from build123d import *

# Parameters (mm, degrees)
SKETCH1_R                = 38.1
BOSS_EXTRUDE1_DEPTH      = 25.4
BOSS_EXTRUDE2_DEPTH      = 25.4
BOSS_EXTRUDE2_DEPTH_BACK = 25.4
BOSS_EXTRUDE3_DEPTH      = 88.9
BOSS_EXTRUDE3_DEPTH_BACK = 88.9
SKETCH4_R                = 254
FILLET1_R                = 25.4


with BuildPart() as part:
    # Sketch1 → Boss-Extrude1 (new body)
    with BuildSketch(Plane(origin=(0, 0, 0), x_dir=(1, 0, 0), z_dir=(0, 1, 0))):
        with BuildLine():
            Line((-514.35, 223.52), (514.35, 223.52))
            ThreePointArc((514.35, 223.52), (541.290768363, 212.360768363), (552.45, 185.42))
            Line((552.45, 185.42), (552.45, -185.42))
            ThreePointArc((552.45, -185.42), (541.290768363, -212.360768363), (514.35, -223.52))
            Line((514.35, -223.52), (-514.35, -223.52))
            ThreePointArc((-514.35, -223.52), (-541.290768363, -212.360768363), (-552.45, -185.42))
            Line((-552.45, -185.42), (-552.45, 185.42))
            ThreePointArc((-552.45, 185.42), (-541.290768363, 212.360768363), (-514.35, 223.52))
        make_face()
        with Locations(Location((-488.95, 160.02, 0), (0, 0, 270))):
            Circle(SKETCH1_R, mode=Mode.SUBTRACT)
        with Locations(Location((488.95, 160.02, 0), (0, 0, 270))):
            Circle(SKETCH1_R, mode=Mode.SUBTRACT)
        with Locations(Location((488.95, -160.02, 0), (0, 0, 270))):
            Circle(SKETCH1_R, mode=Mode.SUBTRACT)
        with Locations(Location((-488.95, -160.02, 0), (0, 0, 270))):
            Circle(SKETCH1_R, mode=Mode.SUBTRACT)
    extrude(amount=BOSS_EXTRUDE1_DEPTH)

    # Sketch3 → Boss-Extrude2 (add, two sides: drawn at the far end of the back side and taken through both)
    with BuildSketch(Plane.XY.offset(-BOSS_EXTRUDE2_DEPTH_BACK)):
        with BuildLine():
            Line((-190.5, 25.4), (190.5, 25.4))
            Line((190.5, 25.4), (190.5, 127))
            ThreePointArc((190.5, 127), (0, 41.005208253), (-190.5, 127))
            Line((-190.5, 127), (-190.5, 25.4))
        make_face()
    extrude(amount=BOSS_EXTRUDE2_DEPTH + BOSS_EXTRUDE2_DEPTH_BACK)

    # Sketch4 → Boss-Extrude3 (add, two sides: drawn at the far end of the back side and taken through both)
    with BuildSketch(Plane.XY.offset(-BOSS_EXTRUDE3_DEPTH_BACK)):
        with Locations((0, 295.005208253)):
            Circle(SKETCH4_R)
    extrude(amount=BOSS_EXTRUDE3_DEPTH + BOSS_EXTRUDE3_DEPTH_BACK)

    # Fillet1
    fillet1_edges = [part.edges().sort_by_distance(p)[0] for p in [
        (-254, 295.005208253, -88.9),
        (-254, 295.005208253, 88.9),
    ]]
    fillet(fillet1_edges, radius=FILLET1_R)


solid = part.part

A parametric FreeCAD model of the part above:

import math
import FreeCAD as App
import Part
import Sketcher
from FreeCAD import Vector
Q = App.Units.Quantity


def edges_at(feature, points):
    """Names of the edges that pass closest to the given points."""
    edges = feature.Shape.Edges
    near = lambda p: min(range(len(edges)), key=lambda i: edges[i].distToShape(Part.Vertex(*p))[0])
    return sorted({f"Edge{near(p) + 1}" for p in points})

doc = App.newDocument("Part")
params = doc.addObject("Spreadsheet::Sheet", "Params")
for row, (alias, value) in enumerate([
    ("sketch1_diameter", "3 in"),
    ("sketch1_width", "40.5 in"),
    ("sketch1_height", "14.6 in"),
    ("pad1_length", "1 in"),
    ("sketch2_radius", "10 in"),
    ("sketch2_width", "15 in"),
    ("sketch2_height", "4 in"),
    ("pad2_length", "1 in"),
    ("pad2_length2", "1 in"),
    ("sketch3_diameter", "20 in"),
    ("pad3_length", "3.5 in"),
    ("pad3_length2", "3.5 in"),
    ("fillet_radius", "1 in"),
], start=1):
    params.set(f"A{row}", alias)
    params.set(f"B{row}", "=" + value)
    params.setAlias(f"B{row}", alias)

body = doc.addObject("PartDesign::Body", "Body")

# Sketch on XZ plane
sketch1 = doc.addObject("Sketcher::SketchObject", "Sketch")
body.addObject(sketch1)
sketch1.AttachmentSupport = (doc.XZ_Plane, [""])
sketch1.MapMode = "FlatFace"
sketch1.addGeometry([
    Part.LineSegment(Vector(514.35, -223.52, 0), Vector(-514.35, -223.52, 0)),  # 0
    Part.ArcOfCircle(Part.Circle(Vector(-514.35, -185.42, 0), Vector(0, 0, 1), 38.1), math.radians(-180), math.radians(-90)),  # 1
    Part.LineSegment(Vector(-552.45, -185.42, 0), Vector(-552.45, 185.42, 0)),  # 2
    Part.ArcOfCircle(Part.Circle(Vector(-514.35, 185.42, 0), Vector(0, 0, 1), 38.1), math.radians(90), math.radians(180)),  # 3
    Part.LineSegment(Vector(-514.35, 223.52, 0), Vector(514.35, 223.52, 0)),  # 4
    Part.ArcOfCircle(Part.Circle(Vector(514.35, 185.42, 0), Vector(0, 0, 1), 38.1), math.radians(0), math.radians(90)),  # 5
    Part.LineSegment(Vector(552.45, 185.42, 0), Vector(552.45, -185.42, 0)),  # 6
    Part.ArcOfCircle(Part.Circle(Vector(514.35, -185.42, 0), Vector(0, 0, 1), 38.1), math.radians(-90), math.radians(0)),  # 7
    Part.Circle(Vector(488.95, 160.02, 0), Vector(0, 0, 1), 38.1),  # 8
    Part.Circle(Vector(-488.95, 160.02, 0), Vector(0, 0, 1), 38.1),  # 9
    Part.Circle(Vector(488.95, -160.02, 0), Vector(0, 0, 1), 38.1),  # 10
    Part.Circle(Vector(-488.95, -160.02, 0), Vector(0, 0, 1), 38.1),  # 11
], False)
sketch1.addConstraint([
    Sketcher.Constraint("Tangent", 0, 2, 1, 2),
    Sketcher.Constraint("Tangent", 1, 1, 2, 1),
    Sketcher.Constraint("Tangent", 2, 2, 3, 2),
    Sketcher.Constraint("Tangent", 3, 1, 4, 1),
    Sketcher.Constraint("Tangent", 4, 2, 5, 2),
    Sketcher.Constraint("Tangent", 5, 1, 6, 1),
    Sketcher.Constraint("Tangent", 6, 2, 7, 2),
    Sketcher.Constraint("Tangent", 7, 1, 0, 1),
    Sketcher.Constraint("Horizontal", 0),
    Sketcher.Constraint("Vertical", 2),
    Sketcher.Constraint("Horizontal", 4),
    Sketcher.Constraint("Vertical", 6),
    Sketcher.Constraint("Equal", 1, 3),
    Sketcher.Constraint("Equal", 3, 5),
    Sketcher.Constraint("Equal", 5, 7),
    Sketcher.Constraint("Equal", 7, 8),
    Sketcher.Constraint("Equal", 8, 9),
    Sketcher.Constraint("Equal", 9, 10),
    Sketcher.Constraint("Equal", 10, 11),
    Sketcher.Constraint("Symmetric", 1, 3, 5, 3, -1, 1),
    Sketcher.Constraint("Symmetric", 9, 3, 10, 3, -1, 1),
    Sketcher.Constraint("Symmetric", 8, 3, 11, 3, -1, 1),
    Sketcher.Constraint("Symmetric", 8, 3, 9, 3, -2),
    Sketcher.Constraint("Diameter", 8, Q("3 in")),
    Sketcher.Constraint("DistanceX", 0, 2, 0, 1, Q("40.5 in")),
    Sketcher.Constraint("DistanceY", 2, 1, 2, 2, Q("14.6 in")),
    Sketcher.Constraint("DistanceX", 8, 3, 5, 3, Q("1 in")),
    Sketcher.Constraint("DistanceY", 8, 3, 5, 3, Q("1 in")),
])
sketch1.setExpression("Constraints[23]", "Params.sketch1_diameter")
sketch1.setExpression("Constraints[24]", "Params.sketch1_width")
sketch1.setExpression("Constraints[25]", "Params.sketch1_height")
pad1 = doc.addObject("PartDesign::Pad", "Pad")
body.addObject(pad1)
pad1.Profile = sketch1
pad1.setExpression("Length", "Params.pad1_length")
pad1.Reversed = True

# Sketch on XY plane
sketch2 = doc.addObject("Sketcher::SketchObject", "Sketch001")
body.addObject(sketch2)
sketch2.AttachmentSupport = (doc.XY_Plane, [""])
sketch2.MapMode = "FlatFace"
sketch2.addGeometry([
    Part.LineSegment(Vector(-190.5, 25.4, 0), Vector(190.5, 25.4, 0)),
    Part.LineSegment(Vector(190.5, 25.4, 0), Vector(190.5, 127, 0)),
    Part.ArcOfCircle(Part.Circle(Vector(0, 295.005208, 0), Vector(0, 0, 1), 254), math.radians(-138.590378), math.radians(-41.409622)),
    Part.LineSegment(Vector(-190.5, 127, 0), Vector(-190.5, 25.4, 0)),
], False)
sketch2.addConstraint([
    Sketcher.Constraint("Coincident", 0, 2, 1, 1),
    Sketcher.Constraint("Coincident", 1, 2, 2, 2),
    Sketcher.Constraint("Coincident", 2, 1, 3, 1),
    Sketcher.Constraint("Coincident", 3, 2, 0, 1),
    Sketcher.Constraint("Horizontal", 0),
    Sketcher.Constraint("Vertical", 1),
    Sketcher.Constraint("Vertical", 3),
    Sketcher.Constraint("Symmetric", 1, 2, 2, 1, -2),
    Sketcher.Constraint("Radius", 2, Q("10 in")),
    Sketcher.Constraint("DistanceX", 0, 1, 0, 2, Q("15 in")),
    Sketcher.Constraint("DistanceY", 1, 1, 1, 2, Q("4 in")),
    Sketcher.Constraint("DistanceY", -1, 1, 0, 2, Q("1 in")),
])
sketch2.setExpression("Constraints[8]", "Params.sketch2_radius")
sketch2.setExpression("Constraints[9]", "Params.sketch2_width")
sketch2.setExpression("Constraints[10]", "Params.sketch2_height")
pad2 = doc.addObject("PartDesign::Pad", "Pad001")
body.addObject(pad2)
pad2.Profile = sketch2
pad2.Type = "TwoLengths"
pad2.setExpression("Length", "Params.pad2_length")
pad2.setExpression("Length2", "Params.pad2_length2")

# Sketch on XY plane
sketch3 = doc.addObject("Sketcher::SketchObject", "Sketch002")
body.addObject(sketch3)
sketch3.AttachmentSupport = (doc.XY_Plane, [""])
sketch3.MapMode = "FlatFace"
sketch3.addGeometry(Part.Circle(Vector(0, 295.005208, 0), Vector(0, 0, 1), 254), False)
sketch3.addConstraint([
    Sketcher.Constraint("PointOnObject", 0, 3, -2),
    Sketcher.Constraint("Diameter", 0, Q("20 in")),
    Sketcher.Constraint("DistanceY", -1, 1, 0, 3, 295.005208),
])
sketch3.setExpression("Constraints[1]", "Params.sketch3_diameter")
pad3 = doc.addObject("PartDesign::Pad", "Pad002")
body.addObject(pad3)
pad3.Profile = sketch3
pad3.Type = "TwoLengths"
pad3.setExpression("Length", "Params.pad3_length")
pad3.setExpression("Length2", "Params.pad3_length2")
doc.recompute()

fillet = doc.addObject("PartDesign::Fillet", "Fillet")
body.addObject(fillet)
fillet.Base = (pad3, edges_at(pad3, [(-254, 295.005, -88.9), (-254, 295.005, 88.9)]))
fillet.setExpression("Radius", "Params.fillet_radius")

doc.recompute()
